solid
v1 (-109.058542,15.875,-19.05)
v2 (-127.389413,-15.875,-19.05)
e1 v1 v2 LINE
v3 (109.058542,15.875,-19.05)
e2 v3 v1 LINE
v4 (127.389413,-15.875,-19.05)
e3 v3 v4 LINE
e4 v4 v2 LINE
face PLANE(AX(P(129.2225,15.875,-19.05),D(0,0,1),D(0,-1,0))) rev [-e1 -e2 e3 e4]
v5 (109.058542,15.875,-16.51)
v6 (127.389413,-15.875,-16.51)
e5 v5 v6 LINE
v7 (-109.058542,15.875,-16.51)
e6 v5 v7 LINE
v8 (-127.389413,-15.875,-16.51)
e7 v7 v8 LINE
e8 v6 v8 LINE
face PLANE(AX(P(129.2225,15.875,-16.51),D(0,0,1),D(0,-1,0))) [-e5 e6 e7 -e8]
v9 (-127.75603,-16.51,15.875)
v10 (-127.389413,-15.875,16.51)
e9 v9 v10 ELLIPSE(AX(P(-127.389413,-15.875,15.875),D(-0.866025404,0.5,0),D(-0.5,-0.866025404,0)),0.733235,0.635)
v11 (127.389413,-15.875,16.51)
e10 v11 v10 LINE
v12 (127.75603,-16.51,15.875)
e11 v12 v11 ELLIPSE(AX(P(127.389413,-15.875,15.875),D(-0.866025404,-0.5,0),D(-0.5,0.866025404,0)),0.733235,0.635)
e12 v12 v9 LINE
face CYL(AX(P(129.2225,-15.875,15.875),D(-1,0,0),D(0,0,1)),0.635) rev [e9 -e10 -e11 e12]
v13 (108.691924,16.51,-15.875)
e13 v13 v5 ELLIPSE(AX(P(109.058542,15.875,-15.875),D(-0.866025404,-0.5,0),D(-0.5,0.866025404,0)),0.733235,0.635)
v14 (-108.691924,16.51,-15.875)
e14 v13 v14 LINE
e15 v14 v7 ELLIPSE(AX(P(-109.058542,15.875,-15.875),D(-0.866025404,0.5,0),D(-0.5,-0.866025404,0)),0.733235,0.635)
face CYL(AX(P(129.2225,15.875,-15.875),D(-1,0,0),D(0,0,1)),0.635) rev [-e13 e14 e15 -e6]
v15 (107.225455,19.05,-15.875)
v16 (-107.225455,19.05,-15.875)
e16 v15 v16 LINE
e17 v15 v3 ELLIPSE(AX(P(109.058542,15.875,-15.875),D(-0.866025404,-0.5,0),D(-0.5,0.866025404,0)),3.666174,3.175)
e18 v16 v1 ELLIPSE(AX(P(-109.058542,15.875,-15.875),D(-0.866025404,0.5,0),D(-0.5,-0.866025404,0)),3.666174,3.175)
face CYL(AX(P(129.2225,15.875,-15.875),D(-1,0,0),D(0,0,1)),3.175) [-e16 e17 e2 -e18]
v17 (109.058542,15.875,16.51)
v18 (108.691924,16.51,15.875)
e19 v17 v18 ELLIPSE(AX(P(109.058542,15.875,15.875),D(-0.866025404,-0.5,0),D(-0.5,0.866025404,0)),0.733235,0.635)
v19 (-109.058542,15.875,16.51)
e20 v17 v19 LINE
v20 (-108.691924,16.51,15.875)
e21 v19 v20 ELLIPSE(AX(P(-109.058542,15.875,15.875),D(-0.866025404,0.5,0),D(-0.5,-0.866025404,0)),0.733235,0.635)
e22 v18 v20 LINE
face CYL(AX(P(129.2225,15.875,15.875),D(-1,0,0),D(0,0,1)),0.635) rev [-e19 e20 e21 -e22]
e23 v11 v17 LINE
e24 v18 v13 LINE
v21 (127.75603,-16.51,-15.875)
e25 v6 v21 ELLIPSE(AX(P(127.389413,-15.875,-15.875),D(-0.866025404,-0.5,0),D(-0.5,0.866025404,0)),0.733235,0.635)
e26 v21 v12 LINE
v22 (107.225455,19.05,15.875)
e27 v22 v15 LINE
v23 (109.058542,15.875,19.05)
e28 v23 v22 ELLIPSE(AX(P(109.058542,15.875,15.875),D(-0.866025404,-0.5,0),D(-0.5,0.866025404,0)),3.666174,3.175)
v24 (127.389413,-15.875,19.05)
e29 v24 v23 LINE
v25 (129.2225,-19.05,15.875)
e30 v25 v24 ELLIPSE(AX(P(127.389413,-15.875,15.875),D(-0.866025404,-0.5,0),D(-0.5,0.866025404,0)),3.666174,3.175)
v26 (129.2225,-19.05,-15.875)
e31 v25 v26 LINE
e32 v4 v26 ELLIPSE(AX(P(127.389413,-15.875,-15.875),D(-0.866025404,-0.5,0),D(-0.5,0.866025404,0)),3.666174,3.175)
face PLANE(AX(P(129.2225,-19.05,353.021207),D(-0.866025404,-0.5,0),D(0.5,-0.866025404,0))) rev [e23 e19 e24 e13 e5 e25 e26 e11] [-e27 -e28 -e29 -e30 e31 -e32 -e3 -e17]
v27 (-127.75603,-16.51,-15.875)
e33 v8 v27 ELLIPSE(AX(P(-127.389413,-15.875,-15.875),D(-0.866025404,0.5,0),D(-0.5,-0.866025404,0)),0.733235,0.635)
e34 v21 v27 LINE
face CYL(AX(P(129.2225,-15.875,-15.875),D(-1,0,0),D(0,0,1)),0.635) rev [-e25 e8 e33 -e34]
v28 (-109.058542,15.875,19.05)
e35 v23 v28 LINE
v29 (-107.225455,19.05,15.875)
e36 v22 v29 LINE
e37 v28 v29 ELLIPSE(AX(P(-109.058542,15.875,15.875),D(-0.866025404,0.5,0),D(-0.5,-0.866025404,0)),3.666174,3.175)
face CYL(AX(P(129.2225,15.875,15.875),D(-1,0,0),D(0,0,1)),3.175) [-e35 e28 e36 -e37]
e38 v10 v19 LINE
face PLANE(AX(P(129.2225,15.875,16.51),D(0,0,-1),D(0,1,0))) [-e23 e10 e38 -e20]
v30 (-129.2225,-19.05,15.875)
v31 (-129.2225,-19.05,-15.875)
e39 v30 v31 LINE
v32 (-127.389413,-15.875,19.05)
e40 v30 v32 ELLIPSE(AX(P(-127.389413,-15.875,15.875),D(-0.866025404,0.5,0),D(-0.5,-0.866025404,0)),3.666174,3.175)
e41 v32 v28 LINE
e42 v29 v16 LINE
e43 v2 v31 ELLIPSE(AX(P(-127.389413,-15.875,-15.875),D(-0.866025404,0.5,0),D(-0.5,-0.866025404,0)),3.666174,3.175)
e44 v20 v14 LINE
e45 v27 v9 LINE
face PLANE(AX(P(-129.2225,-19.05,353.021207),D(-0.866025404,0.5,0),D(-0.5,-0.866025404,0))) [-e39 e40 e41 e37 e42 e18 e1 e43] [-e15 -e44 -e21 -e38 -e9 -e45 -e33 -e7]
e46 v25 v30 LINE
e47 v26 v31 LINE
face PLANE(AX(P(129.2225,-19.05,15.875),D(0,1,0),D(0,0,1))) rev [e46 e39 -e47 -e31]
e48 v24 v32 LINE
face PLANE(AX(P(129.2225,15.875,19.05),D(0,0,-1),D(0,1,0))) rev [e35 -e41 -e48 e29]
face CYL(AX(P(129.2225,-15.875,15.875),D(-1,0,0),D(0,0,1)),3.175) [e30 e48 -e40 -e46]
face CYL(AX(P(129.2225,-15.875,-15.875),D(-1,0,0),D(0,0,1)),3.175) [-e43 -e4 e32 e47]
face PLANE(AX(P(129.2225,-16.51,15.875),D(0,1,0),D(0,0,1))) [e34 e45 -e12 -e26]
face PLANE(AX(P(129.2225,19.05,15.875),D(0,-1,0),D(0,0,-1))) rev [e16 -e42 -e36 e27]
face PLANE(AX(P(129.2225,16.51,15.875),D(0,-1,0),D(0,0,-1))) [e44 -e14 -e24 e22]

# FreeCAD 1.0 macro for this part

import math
import FreeCAD as App
import Part
import Sketcher
Q = App.Units.Quantity


def add_polygon(sketch, points):
    """Adds a closed chain of lines whose ends are joined by coincident constraints."""
    first, n = sketch.GeometryCount, len(points)
    for a, b in zip(points, points[1:] + points[:1]):
        sketch.addGeometry(Part.LineSegment(App.Vector(*a, 0), App.Vector(*b, 0)), False)
    for i in range(n):
        sketch.addConstraint(Sketcher.Constraint("Coincident", first + i, 2, first + (i + 1) % n, 1))

doc = App.newDocument("Part")
params = doc.addObject("Spreadsheet::Sheet", "Params")
for row, (alias, value) in enumerate([
    ("sketch1_radius", "0.125 in"),
    ("sketch1_radius2", "0.025 in"),
    ("sketch1_width", "1.25 in"),
    ("pad1_length", "10.175 in"),
], start=1):
    params.set(f"A{row}", alias)
    params.set(f"B{row}", "=" + value)
    params.setAlias(f"B{row}", alias)

body = doc.addObject("PartDesign::Body", "Body")

sketch1 = body.newObject("Sketcher::SketchObject", "Sketch")
sketch1.AttachmentSupport = (doc.getObject("YZ_Plane"), [""])
sketch1.MapMode = "FlatFace"
sketch1.addGeometry(Part.LineSegment(App.Vector(19.1, -15.9, 0), App.Vector(19.1, 15.9, 0)), False)
sketch1.addGeometry(Part.ArcOfCircle(Part.Circle(App.Vector(15.9, 15.9, 0), App.Vector(0, 0, 1), 3.2), math.radians(0), math.radians(90)), False)
sketch1.addGeometry(Part.LineSegment(App.Vector(15.9, 19.1, 0), App.Vector(-15.9, 19.1, 0)), False)
sketch1.addGeometry(Part.ArcOfCircle(Part.Circle(App.Vector(-15.9, 15.9, 0), App.Vector(0, 0, 1), 3.2), math.radians(90), math.radians(180)), False)
sketch1.addGeometry(Part.LineSegment(App.Vector(-19.1, 15.9, 0), App.Vector(-19.1, -15.9, 0)), False)
sketch1.addGeometry(Part.ArcOfCircle(Part.Circle(App.Vector(-15.9, -15.9, 0), App.Vector(0, 0, 1), 3.2), math.radians(-180), math.radians(-90)), False)
sketch1.addGeometry(Part.LineSegment(App.Vector(-15.9, -19.1, 0), App.Vector(15.9, -19.1, 0)), False)
sketch1.addGeometry(Part.ArcOfCircle(Part.Circle(App.Vector(15.9, -15.9, 0), App.Vector(0, 0, 1), 3.2), math.radians(-90), math.radians(0)), False)
sketch1.addGeometry(Part.LineSegment(App.Vector(16.5, 15.9, 0), App.Vector(16.5, -15.9, 0)), False)
sketch1.addGeometry(Part.ArcOfCircle(Part.Circle(App.Vector(15.9, -15.9, 0), App.Vector(0, 0, 1), 0.6), math.radians(-90), math.radians(0)), False)
sketch1.addGeometry(Part.LineSegment(App.Vector(15.9, -16.5, 0), App.Vector(-15.9, -16.5, 0)), False)
sketch1.addGeometry(Part.ArcOfCircle(Part.Circle(App.Vector(-15.9, -15.9, 0), App.Vector(0, 0, 1), 0.6), math.radians(180), math.radians(270)), False)
sketch1.addGeometry(Part.LineSegment(App.Vector(-16.5, -15.9, 0), App.Vector(-16.5, 15.9, 0)), False)
sketch1.addGeometry(Part.ArcOfCircle(Part.Circle(App.Vector(-15.9, 15.9, 0), App.Vector(0, 0, 1), 0.6), math.radians(90), math.radians(180)), False)
sketch1.addGeometry(Part.LineSegment(App.Vector(-15.9, 16.5, 0), App.Vector(15.9, 16.5, 0)), False)
sketch1.addGeometry(Part.ArcOfCircle(Part.Circle(App.Vector(15.9, 15.9, 0), App.Vector(0, 0, 1), 0.6), math.radians(0), math.radians(90)), False)
sketch1.addConstraint(Sketcher.Constraint("Tangent", 0, 2, 1, 1))
sketch1.addConstraint(Sketcher.Constraint("Tangent", 1, 2, 2, 1))
sketch1.addConstraint(Sketcher.Constraint("Tangent", 2, 2, 3, 1))
sketch1.addConstraint(Sketcher.Constraint("Tangent", 3, 2, 4, 1))
sketch1.addConstraint(Sketcher.Constraint("Tangent", 4, 2, 5, 1))
sketch1.addConstraint(Sketcher.Constraint("Tangent", 5, 2, 6, 1))
sketch1.addConstraint(Sketcher.Constraint("Tangent", 6, 2, 7, 1))
sketch1.addConstraint(Sketcher.Constraint("Tangent", 7, 2, 0, 1))
sketch1.addConstraint(Sketcher.Constraint("Tangent", 8, 2, 9, 2))
sketch1.addConstraint(Sketcher.Constraint("Tangent", 9, 1, 10, 1))
sketch1.addConstraint(Sketcher.Constraint("Tangent", 10, 2, 11, 2))
sketch1.addConstraint(Sketcher.Constraint("Tangent", 11, 1, 12, 1))
sketch1.addConstraint(Sketcher.Constraint("Tangent", 12, 2, 13, 2))
sketch1.addConstraint(Sketcher.Constraint("Tangent", 13, 1, 14, 1))
sketch1.addConstraint(Sketcher.Constraint("Tangent", 14, 2, 15, 2))
sketch1.addConstraint(Sketcher.Constraint("Tangent", 15, 1, 8, 1))
sketch1.addConstraint(Sketcher.Constraint("Vertical", 0))
sketch1.addConstraint(Sketcher.Constraint("Horizontal", 2))
sketch1.addConstraint(Sketcher.Constraint("Vertical", 4))
sketch1.addConstraint(Sketcher.Constraint("Horizontal", 6))
sketch1.addConstraint(Sketcher.Constraint("Vertical", 8))
sketch1.addConstraint(Sketcher.Constraint("Horizontal", 10))
sketch1.addConstraint(Sketcher.Constraint("Vertical", 12))
sketch1.addConstraint(Sketcher.Constraint("Horizontal", 14))
sketch1.addConstraint(Sketcher.Constraint("Coincident", 9, 3, 7, 3))
sketch1.addConstraint(Sketcher.Constraint("Coincident", 11, 3, 5, 3))
sketch1.addConstraint(Sketcher.Constraint("Coincident", 13, 3, 3, 3))
sketch1.addConstraint(Sketcher.Constraint("Equal", 1, 3))
sketch1.addConstraint(Sketcher.Constraint("Equal", 3, 5))
sketch1.addConstraint(Sketcher.Constraint("Equal", 5, 7))
sketch1.addConstraint(Sketcher.Constraint("Equal", 13, 15))
sketch1.addConstraint(Sketcher.Constraint("Symmetric", 1, 3, 5, 3, -1, 1))
sketch1.addConstraint(Sketcher.Constraint("Equal", 14, 0))
sketch1.addConstraint(Sketcher.Constraint("Radius", 1, Q("0.125 in")))
sketch1.addConstraint(Sketcher.Constraint("Radius", 9, Q("0.025 in")))
sketch1.addConstraint(Sketcher.Constraint("DistanceX", 2, 2, 2, 1, Q("1.25 in")))
sketch1.setExpression("Constraints[33]", "Params.sketch1_radius")
sketch1.setExpression("Constraints[34]", "Params.sketch1_radius2")
sketch1.setExpression("Constraints[35]", "Params.sketch1_width")
pad1 = body.newObject("PartDesign::Pad", "Pad")
pad1.Profile = sketch1
pad1.setExpression("Length", "Params.pad1_length")
pad1.Midplane = True

sketch2 = body.newObject("Sketcher::SketchObject", "Sketch001")
sketch2.AttachmentSupport = (doc.getObject("XY_Plane"), [""])
sketch2.MapMode = "FlatFace"
sketch2.AttachmentOffset = App.Placement(App.Vector(0, 0, 0.75 * 25.4), App.Rotation())
add_polygon(sketch2, [(-395, -480), (-129, -19), (-107, 19), (159, 480), (-763, 1013), (-1318, 52)])
sketch2.addConstraint(Sketcher.Constraint("Parallel", 0, 1))
sketch2.addConstraint(Sketcher.Constraint("Parallel", 1, 2))
sketch2.addConstraint(Sketcher.Constraint("Perpendicular", 2, 3))
sketch2.addConstraint(Sketcher.Constraint("Perpendicular", 3, 4))
sketch2.addConstraint(Sketcher.Constraint("Perpendicular", 4, 5))
sketch2.addConstraint(Sketcher.Constraint("Equal", 0, 2))
sketch2.addConstraint(Sketcher.Constraint("Angle", 0, Q("60 deg")))
sketch2.addConstraint(Sketcher.Constraint("DistanceY", 0, 2, 1, 2, Q("1.5 in")))
sketch2.addConstraint(Sketcher.Constraint("DistanceY", 0, 2, -1, 1, Q("0.75 in")))
sketch2.addConstraint(Sketcher.Constraint("DistanceX", 0, 2, -1, 1, Q("5.0875 in")))
sketch2.addConstraint(Sketcher.Constraint("DistanceY", 5, 2, 3, 2, 1492.852902))
sketch2.addConstraint(Sketcher.Constraint("Distance", 0, 532.476518))
pocket1 = body.newObject("PartDesign::Pocket", "Pocket")
pocket1.Profile = sketch2
pocket1.Type = "ThroughAll"
pocket1.Midplane = True

sketch3 = body.newObject("Sketcher::SketchObject", "Sketch002")
sketch3.AttachmentSupport = (doc.getObject("XY_Plane"), [""])
sketch3.MapMode = "FlatFace"
sketch3.AttachmentOffset = App.Placement(App.Vector(0, 0, 0.75 * 25.4), App.Rotation())
add_polygon(sketch3, [(129, -19), (395, -480), (1318, 52), (763, 1013), (-159, 480), (107, 19)])
sketch3.addConstraint(Sketcher.Constraint("Perpendicular", 0, 1))
sketch3.addConstraint(Sketcher.Constraint("Perpendicular", 1, 2))
sketch3.addConstraint(Sketcher.Constraint("Perpendicular", 2, 3))
sketch3.addConstraint(Sketcher.Constraint("Perpendicular", 3, 4))
sketch3.addConstraint(Sketcher.Constraint("Parallel", 4, 5))
sketch3.addConstraint(Sketcher.Constraint("Equal", 0, 4))
sketch3.addConstraint(Sketcher.Constraint("Angle", 0, Q("-60 deg")))
sketch3.addConstraint(Sketcher.Constraint("DistanceY", 5, 2, 4, 2, Q("1.5 in")))
sketch3.addConstraint(Sketcher.Constraint("DistanceY", -1, 1, 4, 2, Q("0.75 in")))
sketch3.addConstraint(Sketcher.Constraint("DistanceX", -1, 1, 5, 2, Q("5.0875 in")))
sketch3.addConstraint(Sketcher.Constraint("DistanceY", 0, 2, 2, 2, 1492.852902))
sketch3.addConstraint(Sketcher.Constraint("Distance", 0, 532.476518))
pocket2 = body.newObject("PartDesign::Pocket", "Pocket001")
pocket2.Profile = sketch3
pocket2.Type = "ThroughAll"
pocket2.Midplane = True

doc.recompute()
